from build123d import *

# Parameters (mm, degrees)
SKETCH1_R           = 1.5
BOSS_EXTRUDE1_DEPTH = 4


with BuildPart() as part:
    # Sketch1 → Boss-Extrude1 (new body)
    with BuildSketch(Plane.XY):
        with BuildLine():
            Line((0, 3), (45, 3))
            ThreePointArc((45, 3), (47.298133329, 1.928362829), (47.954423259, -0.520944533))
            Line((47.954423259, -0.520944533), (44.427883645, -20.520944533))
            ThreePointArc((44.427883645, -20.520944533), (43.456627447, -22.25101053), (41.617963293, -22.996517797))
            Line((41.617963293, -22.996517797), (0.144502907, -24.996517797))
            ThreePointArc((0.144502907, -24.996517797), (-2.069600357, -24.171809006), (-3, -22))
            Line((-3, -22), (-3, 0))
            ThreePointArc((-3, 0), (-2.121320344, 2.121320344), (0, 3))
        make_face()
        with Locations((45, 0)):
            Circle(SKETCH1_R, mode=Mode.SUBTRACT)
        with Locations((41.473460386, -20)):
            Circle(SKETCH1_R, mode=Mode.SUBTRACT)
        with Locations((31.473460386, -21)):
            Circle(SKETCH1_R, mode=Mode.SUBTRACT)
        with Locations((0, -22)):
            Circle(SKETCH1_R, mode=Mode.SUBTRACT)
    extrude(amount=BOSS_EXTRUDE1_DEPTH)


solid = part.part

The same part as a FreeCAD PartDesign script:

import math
import FreeCAD as App
import Part
import Sketcher
Q = App.Units.Quantity

doc = App.newDocument("Part")
body = doc.addObject("PartDesign::Body", "Body")

# Sketch on XY plane
sketch1 = body.newObject("Sketcher::SketchObject", "Sketch")
sketch1.AttachmentSupport = (doc.getObject("XY_Plane"), [""])
sketch1.MapMode = "FlatFace"
sketch1.addGeometry([
    Part.LineSegment(App.Vector(45, 3, 0), App.Vector(0, 3, 0)),  # 0
    Part.ArcOfCircle(Part.Circle(App.Vector(0, 0, 0), App.Vector(0, 0, 1), 3), math.radians(90), math.radians(180)),  # 1
    Part.LineSegment(App.Vector(-3, 0, 0), App.Vector(-3, -22, 0)),  # 2
    Part.ArcOfCircle(Part.Circle(App.Vector(0, -22, 0), App.Vector(0, 0, 1), 3), math.radians(-180), math.radians(-87)),  # 3
    Part.LineSegment(App.Vector(0.1, -25, 0), App.Vector(41.6, -23, 0)),  # 4
    Part.ArcOfCircle(Part.Circle(App.Vector(41.5, -20, 0), App.Vector(0, 0, 1), 3), math.radians(-87), math.radians(-10)),  # 5
    Part.LineSegment(App.Vector(44.4, -20.5, 0), App.Vector(48, -0.5, 0)),  # 6
    Part.ArcOfCircle(Part.Circle(App.Vector(45, 0, 0), App.Vector(0, 0, 1), 3), math.radians(-10), math.radians(90)),  # 7
    Part.Circle(App.Vector(41.5, -20, 0), App.Vector(0, 0, 1), 1.5),  # 8
    Part.Circle(App.Vector(31.5, -21, 0), App.Vector(0, 0, 1), 1.5),  # 9
    Part.Circle(App.Vector(0, -22, 0), App.Vector(0, 0, 1), 1.5),  # 10
    Part.Circle(App.Vector(45, 0, 0), App.Vector(0, 0, 1), 1.5),  # 11
], False)
sketch1.addConstraint([
    Sketcher.Constraint("Tangent", 0, 2, 1, 1),
    Sketcher.Constraint("Tangent", 1, 2, 2, 1),
    Sketcher.Constraint("Tangent", 2, 2, 3, 1),
    Sketcher.Constraint("Tangent", 3, 2, 4, 1),
    Sketcher.Constraint("Tangent", 4, 2, 5, 1),
    Sketcher.Constraint("Tangent", 5, 2, 6, 1),
    Sketcher.Constraint("Tangent", 6, 2, 7, 1),
    Sketcher.Constraint("Tangent", 7, 2, 0, 1),
    Sketcher.Constraint("Horizontal", 0),
    Sketcher.Constraint("Vertical", 2),
    Sketcher.Constraint("Coincident", 1, 3, -1, 1),
    Sketcher.Constraint("Coincident", 8, 3, 5, 3),
    Sketcher.Constraint("Coincident", 10, 3, 3, 3),
    Sketcher.Constraint("Coincident", 11, 3, 7, 3),
    Sketcher.Constraint("Equal", 1, 3),
    Sketcher.Constraint("Equal", 3, 5),
    Sketcher.Constraint("Equal", 5, 7),
    Sketcher.Constraint("Equal", 8, 9),
    Sketcher.Constraint("Equal", 9, 10),
    Sketcher.Constraint("Equal", 10, 11),
    Sketcher.Constraint("Diameter", 8, Q("3 mm")),
    Sketcher.Constraint("Radius", 1, Q("3 mm")),
    Sketcher.Constraint("DistanceX", 0, 2, 0, 1, Q("45 mm")),
    Sketcher.Constraint("DistanceY", 2, 2, 2, 1, Q("22 mm")),
    Sketcher.Constraint("Angle", 6, Q("80 deg")),
    Sketcher.Constraint("DistanceY", 5, 3, -1, 1, Q("20 mm")),
    Sketcher.Constraint("DistanceY", 9, 3, -1, 1, Q("21 mm")),
    Sketcher.Constraint("DistanceX", 9, 3, 8, 3, Q("10 mm")),
])
pad1 = body.newObject("PartDesign::Pad", "Pad")
pad1.Profile = sketch1
pad1.Length = 4

doc.recompute()
